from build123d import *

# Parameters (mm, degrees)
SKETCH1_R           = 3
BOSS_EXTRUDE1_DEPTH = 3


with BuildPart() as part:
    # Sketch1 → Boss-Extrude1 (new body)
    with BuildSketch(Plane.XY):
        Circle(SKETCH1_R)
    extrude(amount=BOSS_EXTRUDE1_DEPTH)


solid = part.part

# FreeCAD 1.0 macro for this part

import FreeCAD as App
import Part
import Sketcher
Q = App.Units.Quantity

doc = App.newDocument("Part")
body = doc.addObject("PartDesign::Body", "Body")

# Sketch on XY plane
sketch1 = doc.addObject("Sketcher::SketchObject", "Sketch")
body.addObject(sketch1)
sketch1.AttachmentSupport = (doc.XY_Plane, [""])
sketch1.MapMode = "FlatFace"
sketch1.addGeometry(Part.Circle(App.Vector(0, 0, 0), App.Vector(0, 0, 1), 3), False)
sketch1.addConstraint(Sketcher.Constraint("Coincident", 0, 3, -1, 1))
sketch1.addConstraint(Sketcher.Constraint("Diameter", 0, Q("6 mm")))
pad1 = doc.addObject("PartDesign::Pad", "Pad")
body.addObject(pad1)
pad1.Profile = sketch1
pad1.Length = 3

doc.recompute()
